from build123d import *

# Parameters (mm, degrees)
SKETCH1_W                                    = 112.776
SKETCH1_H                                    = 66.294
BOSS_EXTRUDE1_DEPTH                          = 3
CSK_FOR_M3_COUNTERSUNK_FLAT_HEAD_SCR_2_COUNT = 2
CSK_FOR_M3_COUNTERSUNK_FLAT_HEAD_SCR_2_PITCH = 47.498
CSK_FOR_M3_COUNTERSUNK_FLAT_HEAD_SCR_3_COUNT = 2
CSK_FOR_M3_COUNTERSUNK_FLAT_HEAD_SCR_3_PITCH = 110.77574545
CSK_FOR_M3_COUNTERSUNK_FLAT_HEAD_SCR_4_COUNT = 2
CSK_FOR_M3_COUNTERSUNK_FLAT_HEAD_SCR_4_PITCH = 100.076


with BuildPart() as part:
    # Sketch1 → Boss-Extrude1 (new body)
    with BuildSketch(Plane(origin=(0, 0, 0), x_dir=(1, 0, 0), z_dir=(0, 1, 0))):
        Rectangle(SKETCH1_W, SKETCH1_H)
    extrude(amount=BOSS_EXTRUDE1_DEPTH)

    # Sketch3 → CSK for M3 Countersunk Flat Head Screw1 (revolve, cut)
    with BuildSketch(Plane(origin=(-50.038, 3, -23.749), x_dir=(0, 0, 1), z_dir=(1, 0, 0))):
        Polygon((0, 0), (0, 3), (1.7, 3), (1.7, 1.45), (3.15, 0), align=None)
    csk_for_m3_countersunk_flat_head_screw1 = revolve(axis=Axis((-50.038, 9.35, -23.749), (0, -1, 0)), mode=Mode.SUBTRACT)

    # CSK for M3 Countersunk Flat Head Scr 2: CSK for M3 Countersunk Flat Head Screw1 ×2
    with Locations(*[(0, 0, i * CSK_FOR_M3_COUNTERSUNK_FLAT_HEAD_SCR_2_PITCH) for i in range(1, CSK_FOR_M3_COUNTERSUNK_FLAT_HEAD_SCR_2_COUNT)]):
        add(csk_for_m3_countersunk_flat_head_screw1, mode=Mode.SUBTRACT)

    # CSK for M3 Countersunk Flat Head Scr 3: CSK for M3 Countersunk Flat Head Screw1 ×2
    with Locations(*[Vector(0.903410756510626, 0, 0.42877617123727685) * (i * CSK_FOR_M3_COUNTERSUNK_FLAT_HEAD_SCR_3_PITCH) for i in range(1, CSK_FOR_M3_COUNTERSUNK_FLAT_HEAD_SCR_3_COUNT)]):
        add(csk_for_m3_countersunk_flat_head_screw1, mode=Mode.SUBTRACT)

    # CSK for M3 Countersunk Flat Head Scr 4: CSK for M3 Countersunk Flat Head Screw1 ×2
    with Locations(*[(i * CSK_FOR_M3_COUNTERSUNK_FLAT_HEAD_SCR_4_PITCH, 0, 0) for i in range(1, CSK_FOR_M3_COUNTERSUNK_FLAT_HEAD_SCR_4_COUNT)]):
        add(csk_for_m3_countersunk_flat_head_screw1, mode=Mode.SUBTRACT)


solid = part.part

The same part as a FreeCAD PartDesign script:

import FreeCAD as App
import Part
import Sketcher
from FreeCAD import Vector
Q = App.Units.Quantity


def add_polygon(sketch, points):
    """Adds a closed chain of lines whose ends are joined by coincident constraints."""
    first, n = sketch.GeometryCount, len(points)
    for a, b in zip(points, points[1:] + points[:1]):
        sketch.addGeometry(Part.LineSegment(App.Vector(*a, 0), App.Vector(*b, 0)), False)
    for i in range(n):
        sketch.addConstraint(Sketcher.Constraint("Coincident", first + i, 2, first + (i + 1) % n, 1))

doc = App.newDocument("Part")
body = doc.addObject("PartDesign::Body", "Body")

# Sketch on XZ plane
sketch1 = doc.addObject("Sketcher::SketchObject", "Sketch")
body.addObject(sketch1)
sketch1.AttachmentSupport = (doc.XZ_Plane, [""])
sketch1.MapMode = "FlatFace"
add_polygon(sketch1, [(-56.388, -33.147), (-56.388, 33.147), (56.388, 33.147), (56.388, -33.147)])  # lines 0-3
sketch1.addConstraint(Sketcher.Constraint("Vertical", 0))
sketch1.addConstraint(Sketcher.Constraint("Horizontal", 1))
sketch1.addConstraint(Sketcher.Constraint("Vertical", 2))
sketch1.addConstraint(Sketcher.Constraint("Horizontal", 3))
sketch1.addConstraint(Sketcher.Constraint("Symmetric", 0, 2, 2, 2, -1, 1))
sketch1.addConstraint(Sketcher.Constraint("DistanceX", 1, 1, 1, 2, 112.776))
sketch1.addConstraint(Sketcher.Constraint("DistanceY", 0, 1, 0, 2, 66.294))
pad1 = doc.addObject("PartDesign::Pad", "Pad")
body.addObject(pad1)
pad1.Profile = sketch1
pad1.Length = 3
pad1.Reversed = True

# Sketch on YZ plane
sketch2 = doc.addObject("Sketcher::SketchObject", "Sketch001")
body.addObject(sketch2)
sketch2.AttachmentSupport = (doc.YZ_Plane, [""])
sketch2.MapMode = "FlatFace"
sketch2.AttachmentOffset = App.Placement(Vector(0, 0, -50.038), App.Rotation())
add_polygon(sketch2, [(0, -23.749), (3, -23.749), (3, -20.599), (1.55, -22.049), (0, -22.049)])  # lines 0-4
sketch2.addGeometry(Part.LineSegment(Vector(3, -23.749, 0), Vector(0, -23.749, 0)), True)  # axis
sketch2.addConstraint(Sketcher.Constraint("Horizontal", 0))
sketch2.addConstraint(Sketcher.Constraint("Vertical", 1))
sketch2.addConstraint(Sketcher.Constraint("Horizontal", 3))
sketch2.addConstraint(Sketcher.Constraint("Vertical", 4))
sketch2.addConstraint(Sketcher.Constraint("Horizontal", 5))
sketch2.addConstraint(Sketcher.Constraint("Coincident", 5, 1, 0, 2))
sketch2.addConstraint(Sketcher.Constraint("PointOnObject", 3, 2, -2))
sketch2.addConstraint(Sketcher.Constraint("PointOnObject", 5, 2, -2))
sketch2.addConstraint(Sketcher.Constraint("DistanceX", 0, 1, 0, 2, 3.0))
sketch2.addConstraint(Sketcher.Constraint("Angle", 2, Q("-135 deg")))
sketch2.addConstraint(Sketcher.Constraint("DistanceY", 4, 2, 4, 1, 1.7))
sketch2.addConstraint(Sketcher.Constraint("DistanceX", 3, 2, 3, 1, 1.55))
sketch2.addConstraint(Sketcher.Constraint("DistanceY", 0, 2, -1, 1, 23.749))
groove = doc.addObject("PartDesign::Groove", "Groove")
body.addObject(groove)
groove.Profile = sketch2
groove.ReferenceAxis = (sketch2, ["Axis0"])
groove.Angle = 360
doc.recompute()

linearpattern = doc.addObject("PartDesign::LinearPattern", "LinearPattern")
body.addObject(linearpattern)
linearpattern.Originals = [groove]
linearpattern.Direction = (doc.Z_Axis, [""])
linearpattern.Mode = "offset"
linearpattern.Offset = 47.498
linearpattern.Occurrences = 2
body.Tip = linearpattern
doc.recompute()

datumline = doc.addObject("PartDesign::Line", "DatumLine")
body.addObject(datumline)
datumline.Placement = App.Placement(Vector(0, 0, 0), App.Rotation(Vector(0, 0, 1), Vector(0.903410757, 0, 0.428776171)))
linearpattern2 = doc.addObject("PartDesign::LinearPattern", "LinearPattern001")
body.addObject(linearpattern2)
linearpattern2.Originals = [groove]
linearpattern2.Direction = (datumline, [""])
linearpattern2.Mode = "offset"
linearpattern2.Offset = 110.775745
linearpattern2.Occurrences = 2
body.Tip = linearpattern2
doc.recompute()

linearpattern3 = doc.addObject("PartDesign::LinearPattern", "LinearPattern002")
body.addObject(linearpattern3)
linearpattern3.Originals = [groove]
linearpattern3.Direction = (doc.X_Axis, [""])
linearpattern3.Mode = "offset"
linearpattern3.Offset = 100.076
linearpattern3.Occurrences = 2
body.Tip = linearpattern3

doc.recompute()
